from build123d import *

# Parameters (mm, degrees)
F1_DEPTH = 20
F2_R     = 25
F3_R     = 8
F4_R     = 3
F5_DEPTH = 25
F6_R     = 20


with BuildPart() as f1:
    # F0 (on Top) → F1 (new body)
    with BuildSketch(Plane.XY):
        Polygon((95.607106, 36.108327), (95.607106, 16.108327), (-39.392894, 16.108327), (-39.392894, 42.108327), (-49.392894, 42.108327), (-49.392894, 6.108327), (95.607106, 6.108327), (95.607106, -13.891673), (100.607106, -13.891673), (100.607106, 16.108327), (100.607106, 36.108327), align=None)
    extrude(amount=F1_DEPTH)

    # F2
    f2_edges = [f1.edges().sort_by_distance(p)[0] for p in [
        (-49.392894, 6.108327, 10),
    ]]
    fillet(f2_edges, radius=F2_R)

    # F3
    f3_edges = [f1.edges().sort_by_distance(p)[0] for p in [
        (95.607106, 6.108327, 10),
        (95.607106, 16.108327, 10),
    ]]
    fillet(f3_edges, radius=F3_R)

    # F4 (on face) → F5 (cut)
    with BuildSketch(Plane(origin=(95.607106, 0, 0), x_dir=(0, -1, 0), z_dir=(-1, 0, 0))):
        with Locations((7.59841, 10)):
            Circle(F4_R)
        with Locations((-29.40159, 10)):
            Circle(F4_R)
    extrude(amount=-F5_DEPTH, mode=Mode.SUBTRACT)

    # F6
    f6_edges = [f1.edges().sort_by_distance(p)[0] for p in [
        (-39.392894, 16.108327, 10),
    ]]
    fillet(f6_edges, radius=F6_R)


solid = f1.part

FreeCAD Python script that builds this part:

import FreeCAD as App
import Part
import Sketcher
from FreeCAD import Vector
Q = App.Units.Quantity


def edges_at(feature, points):
    """Names of the edges that pass closest to the given points."""
    edges = feature.Shape.Edges
    near = lambda p: min(range(len(edges)), key=lambda i: edges[i].distToShape(Part.Vertex(*p))[0])
    return sorted({f"Edge{near(p) + 1}" for p in points})


def add_polygon(sketch, points):
    """Adds a closed chain of lines whose ends are joined by coincident constraints."""
    first, n = sketch.GeometryCount, len(points)
    for a, b in zip(points, points[1:] + points[:1]):
        sketch.addGeometry(Part.LineSegment(App.Vector(*a, 0), App.Vector(*b, 0)), False)
    for i in range(n):
        sketch.addConstraint(Sketcher.Constraint("Coincident", first + i, 2, first + (i + 1) % n, 1))

doc = App.newDocument("Part")
body = doc.addObject("PartDesign::Body", "Body")

sketch1 = doc.addObject("Sketcher::SketchObject", "Sketch")
body.addObject(sketch1)
sketch1.AttachmentSupport = (doc.XY_Plane, [""])
sketch1.MapMode = "FlatFace"
add_polygon(sketch1, [(96, 36), (96, 16), (-39, 16), (-39, 42), (-49, 42), (-49, 6), (96, 6), (96, -14), (101, -14), (101, 36)])
sketch1.addConstraint([
    Sketcher.Constraint("Vertical", 0),
    Sketcher.Constraint("Horizontal", 1),
    Sketcher.Constraint("Vertical", 2),
    Sketcher.Constraint("Horizontal", 3),
    Sketcher.Constraint("Vertical", 4),
    Sketcher.Constraint("Horizontal", 5),
    Sketcher.Constraint("Vertical", 6),
    Sketcher.Constraint("Horizontal", 7),
    Sketcher.Constraint("Vertical", 8),
    Sketcher.Constraint("Horizontal", 9),
    Sketcher.Constraint("Vertical", 0, 2, 5, 2),
    Sketcher.Constraint("Equal", 0, 6),
    Sketcher.Constraint("DistanceX", 1, 2, 1, 1, Q("135 mm")),
    Sketcher.Constraint("DistanceX", 3, 2, 3, 1, Q("10 mm")),
    Sketcher.Constraint("DistanceX", 7, 1, 7, 2, Q("5 mm")),
    Sketcher.Constraint("DistanceY", 0, 2, 0, 1, Q("20 mm")),
    Sketcher.Constraint("DistanceY", 2, 1, 2, 2, Q("26 mm")),
    Sketcher.Constraint("DistanceY", 4, 2, 4, 1, Q("36 mm")),
    Sketcher.Constraint("DistanceX", -1, 1, 0, 2, Q("95.607106 mm")),
    Sketcher.Constraint("DistanceY", -1, 1, 0, 2, Q("16.108327 mm")),
])
pad1 = doc.addObject("PartDesign::Pad", "Pad")
body.addObject(pad1)
pad1.Profile = sketch1
pad1.Length = 20
doc.recompute()

fillet = doc.addObject("PartDesign::Fillet", "Fillet")
body.addObject(fillet)
fillet.Base = (pad1, edges_at(pad1, [(-49.393, 6.108, 10)]))
fillet.Radius = 25
doc.recompute()

fillet2 = doc.addObject("PartDesign::Fillet", "Fillet001")
body.addObject(fillet2)
fillet2.Base = (fillet, edges_at(fillet, [(95.607, 6.108, 10), (95.607, 16.108, 10)]))
fillet2.Radius = 8

sketch2 = doc.addObject("Sketcher::SketchObject", "Sketch001")
body.addObject(sketch2)
sketch2.AttachmentSupport = (doc.YZ_Plane, [""])
sketch2.MapMode = "FlatFace"
sketch2.AttachmentOffset = App.Placement(Vector(0, 0, 95.607106), App.Rotation())
sketch2.addGeometry([
    Part.Circle(Vector(-7.6, 10, 0), Vector(0, 0, 1), 3),
    Part.Circle(Vector(29.4, 10, 0), Vector(0, 0, 1), 3),
], False)
sketch2.addConstraint([
    Sketcher.Constraint("Equal", 0, 1),
    Sketcher.Constraint("Horizontal", 0, 3, 1, 3),
    Sketcher.Constraint("Diameter", 0, Q("6 mm")),
    Sketcher.Constraint("DistanceY", -1, 1, 0, 3, Q("10 mm")),
    Sketcher.Constraint("DistanceX", 0, 3, 1, 3, Q("37 mm")),
    Sketcher.Constraint("DistanceX", 0, 3, -1, 1, Q("7.59841 mm")),
])
pocket1 = doc.addObject("PartDesign::Pocket", "Pocket")
body.addObject(pocket1)
pocket1.Profile = sketch2
pocket1.Length = 25
pocket1.Reversed = True
doc.recompute()

fillet3 = doc.addObject("PartDesign::Fillet", "Fillet002")
body.addObject(fillet3)
fillet3.Base = (pocket1, edges_at(pocket1, [(-39.393, 16.108, 10)]))
fillet3.Radius = 20

doc.recompute()
